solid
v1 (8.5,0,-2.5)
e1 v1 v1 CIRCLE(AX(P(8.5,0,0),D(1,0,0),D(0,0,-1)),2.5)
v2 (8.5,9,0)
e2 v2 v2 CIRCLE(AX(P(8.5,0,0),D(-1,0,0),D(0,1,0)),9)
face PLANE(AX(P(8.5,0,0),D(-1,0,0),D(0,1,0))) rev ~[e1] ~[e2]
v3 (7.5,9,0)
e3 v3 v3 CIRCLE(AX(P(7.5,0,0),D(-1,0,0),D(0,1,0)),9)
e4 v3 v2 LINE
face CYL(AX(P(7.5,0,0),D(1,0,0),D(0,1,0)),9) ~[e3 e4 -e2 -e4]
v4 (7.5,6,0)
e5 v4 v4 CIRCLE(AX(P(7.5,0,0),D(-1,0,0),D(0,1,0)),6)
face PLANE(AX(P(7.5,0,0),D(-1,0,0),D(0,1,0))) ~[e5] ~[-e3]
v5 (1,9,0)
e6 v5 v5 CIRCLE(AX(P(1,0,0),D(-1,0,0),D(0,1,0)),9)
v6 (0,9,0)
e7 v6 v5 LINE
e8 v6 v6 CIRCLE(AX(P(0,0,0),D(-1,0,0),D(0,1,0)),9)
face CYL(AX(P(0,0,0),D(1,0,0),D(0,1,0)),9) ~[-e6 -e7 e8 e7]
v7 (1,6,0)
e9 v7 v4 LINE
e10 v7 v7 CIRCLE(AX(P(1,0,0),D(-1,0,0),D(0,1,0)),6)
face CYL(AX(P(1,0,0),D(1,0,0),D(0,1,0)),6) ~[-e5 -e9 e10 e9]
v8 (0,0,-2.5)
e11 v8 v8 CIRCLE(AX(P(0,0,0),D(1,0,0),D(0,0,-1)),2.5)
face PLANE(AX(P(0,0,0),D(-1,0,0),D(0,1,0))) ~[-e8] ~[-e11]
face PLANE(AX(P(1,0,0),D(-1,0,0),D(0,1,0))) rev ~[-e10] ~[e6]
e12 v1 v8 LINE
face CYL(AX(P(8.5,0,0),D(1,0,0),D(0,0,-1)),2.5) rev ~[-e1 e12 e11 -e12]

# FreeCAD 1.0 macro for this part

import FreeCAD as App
import Part
import Sketcher
from FreeCAD import Vector


def add_polygon(sketch, points):
    """Adds a closed chain of lines whose ends are joined by coincident constraints."""
    first, n = sketch.GeometryCount, len(points)
    for a, b in zip(points, points[1:] + points[:1]):
        sketch.addGeometry(Part.LineSegment(App.Vector(*a, 0), App.Vector(*b, 0)), False)
    for i in range(n):
        sketch.addConstraint(Sketcher.Constraint("Coincident", first + i, 2, first + (i + 1) % n, 1))

doc = App.newDocument("Part")
body = doc.addObject("PartDesign::Body", "Body")

sketch1 = doc.addObject("Sketcher::SketchObject", "Sketch")
body.addObject(sketch1)
sketch1.AttachmentSupport = (doc.XY_Plane, [""])
sketch1.MapMode = "FlatFace"
add_polygon(sketch1, [(0, 9), (0, 0), (8.5, 0), (8.5, 9), (7.5, 9), (7.5, 6), (1, 6), (1, 9)])
sketch1.addConstraint([
    Sketcher.Constraint("Vertical", 0),
    Sketcher.Constraint("Horizontal", 1),
    Sketcher.Constraint("Vertical", 2),
    Sketcher.Constraint("Horizontal", 3),
    Sketcher.Constraint("Vertical", 4),
    Sketcher.Constraint("Horizontal", 5),
    Sketcher.Constraint("Vertical", 6),
    Sketcher.Constraint("Horizontal", 7),
    Sketcher.Constraint("Coincident", 0, 2, -1, 1),
    Sketcher.Constraint("Horizontal", 3, 2, 6, 2),
    Sketcher.Constraint("Equal", 3, 7),
    Sketcher.Constraint("DistanceX", 3, 2, 3, 1, 1.0),
    Sketcher.Constraint("DistanceY", 0, 2, 0, 1, 9.0),
    Sketcher.Constraint("DistanceX", 1, 1, 1, 2, 8.5),
    Sketcher.Constraint("DistanceY", -1, 1, 4, 2, 6.0),
])
revolution = doc.addObject("PartDesign::Revolution", "Revolution")
body.addObject(revolution)
revolution.Profile = sketch1
revolution.ReferenceAxis = (sketch1, ["H_Axis"])
revolution.Angle = 360

sketch2 = doc.addObject("Sketcher::SketchObject", "Sketch001")
body.addObject(sketch2)
sketch2.AttachmentSupport = (doc.YZ_Plane, [""])
sketch2.MapMode = "FlatFace"
sketch2.AttachmentOffset = App.Placement(Vector(0, 0, 8.5), App.Rotation())
sketch2.addGeometry(Part.Circle(Vector(0, 0, 0), Vector(0, 0, 1), 2.5), False)
sketch2.addConstraint([
    Sketcher.Constraint("Coincident", 0, 3, -1, 1),
    Sketcher.Constraint("Diameter", 0, 5.0),
])
pocket1 = doc.addObject("PartDesign::Pocket", "Pocket")
body.addObject(pocket1)
pocket1.Profile = sketch2
pocket1.Type = "UpToFirst"

doc.recompute()
